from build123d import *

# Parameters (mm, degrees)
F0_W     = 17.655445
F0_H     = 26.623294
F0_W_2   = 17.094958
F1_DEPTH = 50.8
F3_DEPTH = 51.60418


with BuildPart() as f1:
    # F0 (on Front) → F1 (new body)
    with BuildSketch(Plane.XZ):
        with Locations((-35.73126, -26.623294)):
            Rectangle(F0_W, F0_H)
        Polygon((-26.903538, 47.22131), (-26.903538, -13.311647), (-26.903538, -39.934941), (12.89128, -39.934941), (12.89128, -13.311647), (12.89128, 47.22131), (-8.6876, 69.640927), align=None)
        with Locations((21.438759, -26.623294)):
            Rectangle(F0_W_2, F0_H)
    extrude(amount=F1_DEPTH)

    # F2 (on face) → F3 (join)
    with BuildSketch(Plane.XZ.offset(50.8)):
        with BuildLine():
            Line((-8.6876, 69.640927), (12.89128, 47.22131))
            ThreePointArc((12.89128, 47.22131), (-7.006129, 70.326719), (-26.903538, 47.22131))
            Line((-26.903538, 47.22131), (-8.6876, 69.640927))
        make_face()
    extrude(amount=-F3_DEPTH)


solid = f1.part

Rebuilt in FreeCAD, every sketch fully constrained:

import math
import FreeCAD as App
import Part
import Sketcher
from FreeCAD import Vector
Q = App.Units.Quantity


def add_polygon(sketch, points):
    """Adds a closed chain of lines whose ends are joined by coincident constraints."""
    first, n = sketch.GeometryCount, len(points)
    for a, b in zip(points, points[1:] + points[:1]):
        sketch.addGeometry(Part.LineSegment(App.Vector(*a, 0), App.Vector(*b, 0)), False)
    for i in range(n):
        sketch.addConstraint(Sketcher.Constraint("Coincident", first + i, 2, first + (i + 1) % n, 1))

doc = App.newDocument("Part")
body = doc.addObject("PartDesign::Body", "Body")

sketch1 = doc.addObject("Sketcher::SketchObject", "Sketch")
body.addObject(sketch1)
sketch1.AttachmentSupport = (doc.XZ_Plane, [""])
sketch1.MapMode = "FlatFace"
add_polygon(sketch1, [(-45, -13), (-45, -40), (30, -40), (30, -13), (13, -13), (13, 47), (-9, 70), (-27, 47), (-27, -13)])
sketch1.addConstraint(Sketcher.Constraint("Vertical", 0))
sketch1.addConstraint(Sketcher.Constraint("Horizontal", 1))
sketch1.addConstraint(Sketcher.Constraint("Vertical", 2))
sketch1.addConstraint(Sketcher.Constraint("Horizontal", 3))
sketch1.addConstraint(Sketcher.Constraint("Vertical", 4))
sketch1.addConstraint(Sketcher.Constraint("Vertical", 7))
sketch1.addConstraint(Sketcher.Constraint("Horizontal", 8))
sketch1.addConstraint(Sketcher.Constraint("Horizontal", 4, 2, 6, 2))
sketch1.addConstraint(Sketcher.Constraint("Horizontal", 3, 2, 7, 2))
sketch1.addConstraint(Sketcher.Constraint("DistanceX", 1, 1, 1, 2, 74.54522))
sketch1.addConstraint(Sketcher.Constraint("DistanceX", 5, 2, -1, 1, 8.6876))
sketch1.addConstraint(Sketcher.Constraint("DistanceX", 3, 2, 3, 1, 17.094958))
sketch1.addConstraint(Sketcher.Constraint("DistanceX", 8, 2, 8, 1, 17.655444))
sketch1.addConstraint(Sketcher.Constraint("DistanceY", 0, 2, 0, 1, 26.623294))
sketch1.addConstraint(Sketcher.Constraint("DistanceY", 4, 1, 4, 2, 60.532957))
sketch1.addConstraint(Sketcher.Constraint("DistanceY", 0, 2, -1, 1, 39.934941))
sketch1.addConstraint(Sketcher.Constraint("DistanceX", -1, 1, 1, 2, 29.986238))
sketch1.addConstraint(Sketcher.Constraint("DistanceY", 0, 2, 5, 2, 109.575868))
pad1 = doc.addObject("PartDesign::Pad", "Pad")
body.addObject(pad1)
pad1.Profile = sketch1
pad1.Length = Q("2 in")

sketch2 = doc.addObject("Sketcher::SketchObject", "Sketch001")
body.addObject(sketch2)
sketch2.AttachmentSupport = (doc.XZ_Plane, [""])
sketch2.MapMode = "FlatFace"
sketch2.AttachmentOffset = App.Placement(Vector(0, 0, 2 * 25.4), App.Rotation())
sketch2.addGeometry(Part.LineSegment(Vector(-9, 70, 0), Vector(13, 47, 0)), False)
sketch2.addGeometry(Part.ArcOfCircle(Part.Circle(Vector(-7, 50, 0), Vector(0, 0, 1), 20), math.radians(-9), math.radians(189)), False)
sketch2.addGeometry(Part.LineSegment(Vector(-27, 47, 0), Vector(-9, 70, 0)), False)
sketch2.addConstraint(Sketcher.Constraint("Coincident", 0, 2, 1, 1))
sketch2.addConstraint(Sketcher.Constraint("Coincident", 1, 2, 2, 1))
sketch2.addConstraint(Sketcher.Constraint("Coincident", 2, 2, 0, 1))
sketch2.addConstraint(Sketcher.Constraint("Horizontal", 0, 2, 1, 2))
sketch2.addConstraint(Sketcher.Constraint("Radius", 1, 20.120111))
sketch2.addConstraint(Sketcher.Constraint("DistanceX", 2, 2, -1, 1, 8.6876))
sketch2.addConstraint(Sketcher.Constraint("DistanceX", 1, 3, -1, 1, 7.006129))
sketch2.addConstraint(Sketcher.Constraint("DistanceX", -1, 1, 0, 2, 12.89128))
sketch2.addConstraint(Sketcher.Constraint("DistanceY", -1, 1, 0, 2, 47.22131))
sketch2.addConstraint(Sketcher.Constraint("DistanceY", 1, 3, 2, 2, 19.434319))
pad2 = doc.addObject("PartDesign::Pad", "Pad001")
body.addObject(pad2)
pad2.Profile = sketch2
pad2.Length = 51.60418
pad2.Reversed = True

doc.recompute()
